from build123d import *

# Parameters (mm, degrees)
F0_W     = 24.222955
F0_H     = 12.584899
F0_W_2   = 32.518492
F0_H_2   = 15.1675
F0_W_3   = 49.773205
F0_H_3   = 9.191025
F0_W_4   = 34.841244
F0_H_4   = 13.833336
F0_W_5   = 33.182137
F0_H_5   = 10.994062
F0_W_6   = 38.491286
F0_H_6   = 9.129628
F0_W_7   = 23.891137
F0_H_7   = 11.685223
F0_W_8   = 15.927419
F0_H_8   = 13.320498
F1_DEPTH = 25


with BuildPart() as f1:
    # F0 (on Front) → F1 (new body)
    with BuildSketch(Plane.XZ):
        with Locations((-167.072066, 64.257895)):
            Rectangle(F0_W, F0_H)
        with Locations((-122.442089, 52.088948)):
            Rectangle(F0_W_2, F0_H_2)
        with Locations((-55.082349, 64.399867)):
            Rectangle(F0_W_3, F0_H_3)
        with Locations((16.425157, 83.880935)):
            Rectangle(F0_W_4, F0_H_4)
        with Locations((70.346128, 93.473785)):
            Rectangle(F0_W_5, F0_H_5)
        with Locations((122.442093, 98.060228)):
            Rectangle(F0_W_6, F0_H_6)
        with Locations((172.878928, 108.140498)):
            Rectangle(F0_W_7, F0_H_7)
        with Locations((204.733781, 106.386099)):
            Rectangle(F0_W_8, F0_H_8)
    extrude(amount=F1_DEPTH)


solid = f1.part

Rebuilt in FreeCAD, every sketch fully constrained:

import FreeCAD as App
import Part
import Sketcher
Q = App.Units.Quantity

doc = App.newDocument("Part")
body = doc.addObject("PartDesign::Body", "Body")
body.AllowCompound = True

sketch1 = body.newObject("Sketcher::SketchObject", "Sketch")
sketch1.AttachmentSupport = (doc.getObject("XZ_Plane"), [""])
sketch1.MapMode = "FlatFace"
sketch1.addGeometry([
    Part.LineSegment(App.Vector(-179.183544, 70.550344, 0), App.Vector(-179.183544, 57.965446, 0)),
    Part.LineSegment(App.Vector(-179.183544, 57.965446, 0), App.Vector(-154.960589, 57.965446, 0)),
    Part.LineSegment(App.Vector(-154.960589, 57.965446, 0), App.Vector(-154.960589, 70.550344, 0)),
    Part.LineSegment(App.Vector(-154.960589, 70.550344, 0), App.Vector(-179.183544, 70.550344, 0)),
    Part.LineSegment(App.Vector(-138.701335, 59.672698, 0), App.Vector(-138.701335, 44.505198, 0)),
    Part.LineSegment(App.Vector(-138.701335, 44.505198, 0), App.Vector(-106.182843, 44.505198, 0)),
    Part.LineSegment(App.Vector(-106.182843, 44.505198, 0), App.Vector(-106.182843, 59.672698, 0)),
    Part.LineSegment(App.Vector(-106.182843, 59.672698, 0), App.Vector(-138.701335, 59.672698, 0)),
    Part.LineSegment(App.Vector(-79.968952, 68.995379, 0), App.Vector(-79.968952, 59.804355, 0)),
    Part.LineSegment(App.Vector(-79.968952, 59.804355, 0), App.Vector(-30.195746, 59.804355, 0)),
    Part.LineSegment(App.Vector(-30.195746, 59.804355, 0), App.Vector(-30.195746, 68.995379, 0)),
    Part.LineSegment(App.Vector(-30.195746, 68.995379, 0), App.Vector(-79.968952, 68.995379, 0)),
    Part.LineSegment(App.Vector(-0.995465, 90.797603, 0), App.Vector(-0.995465, 76.964267, 0)),
    Part.LineSegment(App.Vector(-0.995465, 76.964267, 0), App.Vector(33.845779, 76.964267, 0)),
    Part.LineSegment(App.Vector(33.845779, 76.964267, 0), App.Vector(33.845779, 90.797603, 0)),
    Part.LineSegment(App.Vector(33.845779, 90.797603, 0), App.Vector(-0.995465, 90.797603, 0)),
    Part.LineSegment(App.Vector(53.75506, 98.970816, 0), App.Vector(53.75506, 87.976754, 0)),
    Part.LineSegment(App.Vector(53.75506, 87.976754, 0), App.Vector(86.937196, 87.976754, 0)),
    Part.LineSegment(App.Vector(86.937196, 87.976754, 0), App.Vector(86.937196, 98.970816, 0)),
    Part.LineSegment(App.Vector(86.937196, 98.970816, 0), App.Vector(53.75506, 98.970816, 0)),
    Part.LineSegment(App.Vector(103.19645, 102.625042, 0), App.Vector(103.19645, 93.495414, 0)),
    Part.LineSegment(App.Vector(103.19645, 93.495414, 0), App.Vector(141.687736, 93.495414, 0)),
    Part.LineSegment(App.Vector(141.687736, 93.495414, 0), App.Vector(141.687736, 102.625042, 0)),
    Part.LineSegment(App.Vector(141.687736, 102.625042, 0), App.Vector(103.19645, 102.625042, 0)),
    Part.LineSegment(App.Vector(160.933359, 113.983109, 0), App.Vector(160.933359, 102.297887, 0)),
    Part.LineSegment(App.Vector(160.933359, 102.297887, 0), App.Vector(184.824497, 102.297887, 0)),
    Part.LineSegment(App.Vector(184.824497, 102.297887, 0), App.Vector(184.824497, 113.983109, 0)),
    Part.LineSegment(App.Vector(184.824497, 113.983109, 0), App.Vector(160.933359, 113.983109, 0)),
    Part.LineSegment(App.Vector(196.770072, 113.046348, 0), App.Vector(196.770072, 99.72585, 0)),
    Part.LineSegment(App.Vector(196.770072, 99.72585, 0), App.Vector(212.69749, 99.72585, 0)),
    Part.LineSegment(App.Vector(212.69749, 99.72585, 0), App.Vector(212.69749, 113.046348, 0)),
    Part.LineSegment(App.Vector(212.69749, 113.046348, 0), App.Vector(196.770072, 113.046348, 0)),
], False)
sketch1.addConstraint([
    Sketcher.Constraint("Coincident", 0, 2, 1, 1),
    Sketcher.Constraint("Coincident", 1, 2, 2, 1),
    Sketcher.Constraint("Coincident", 2, 2, 3, 1),
    Sketcher.Constraint("Coincident", 3, 2, 0, 1),
    Sketcher.Constraint("Coincident", 4, 2, 5, 1),
    Sketcher.Constraint("Coincident", 5, 2, 6, 1),
    Sketcher.Constraint("Coincident", 6, 2, 7, 1),
    Sketcher.Constraint("Coincident", 7, 2, 4, 1),
    Sketcher.Constraint("Coincident", 8, 2, 9, 1),
    Sketcher.Constraint("Coincident", 9, 2, 10, 1),
    Sketcher.Constraint("Coincident", 10, 2, 11, 1),
    Sketcher.Constraint("Coincident", 11, 2, 8, 1),
    Sketcher.Constraint("Coincident", 12, 2, 13, 1),
    Sketcher.Constraint("Coincident", 13, 2, 14, 1),
    Sketcher.Constraint("Coincident", 14, 2, 15, 1),
    Sketcher.Constraint("Coincident", 15, 2, 12, 1),
    Sketcher.Constraint("Coincident", 16, 2, 17, 1),
    Sketcher.Constraint("Coincident", 17, 2, 18, 1),
    Sketcher.Constraint("Coincident", 18, 2, 19, 1),
    Sketcher.Constraint("Coincident", 19, 2, 16, 1),
    Sketcher.Constraint("Coincident", 20, 2, 21, 1),
    Sketcher.Constraint("Coincident", 21, 2, 22, 1),
    Sketcher.Constraint("Coincident", 22, 2, 23, 1),
    Sketcher.Constraint("Coincident", 23, 2, 20, 1),
    Sketcher.Constraint("Coincident", 24, 2, 25, 1),
    Sketcher.Constraint("Coincident", 25, 2, 26, 1),
    Sketcher.Constraint("Coincident", 26, 2, 27, 1),
    Sketcher.Constraint("Coincident", 27, 2, 24, 1),
    Sketcher.Constraint("Coincident", 28, 2, 29, 1),
    Sketcher.Constraint("Coincident", 29, 2, 30, 1),
    Sketcher.Constraint("Coincident", 30, 2, 31, 1),
    Sketcher.Constraint("Coincident", 31, 2, 28, 1),
    Sketcher.Constraint("Vertical", 0),
    Sketcher.Constraint("Horizontal", 1),
    Sketcher.Constraint("Vertical", 2),
    Sketcher.Constraint("Horizontal", 3),
    Sketcher.Constraint("Vertical", 4),
    Sketcher.Constraint("Horizontal", 5),
    Sketcher.Constraint("Vertical", 6),
    Sketcher.Constraint("Horizontal", 7),
    Sketcher.Constraint("Vertical", 8),
    Sketcher.Constraint("Horizontal", 9),
    Sketcher.Constraint("Vertical", 10),
    Sketcher.Constraint("Horizontal", 11),
    Sketcher.Constraint("Vertical", 12),
    Sketcher.Constraint("Horizontal", 13),
    Sketcher.Constraint("Vertical", 14),
    Sketcher.Constraint("Horizontal", 15),
    Sketcher.Constraint("Vertical", 16),
    Sketcher.Constraint("Horizontal", 17),
    Sketcher.Constraint("Vertical", 18),
    Sketcher.Constraint("Horizontal", 19),
    Sketcher.Constraint("Vertical", 20),
    Sketcher.Constraint("Horizontal", 21),
    Sketcher.Constraint("Vertical", 22),
    Sketcher.Constraint("Horizontal", 23),
    Sketcher.Constraint("Vertical", 24),
    Sketcher.Constraint("Horizontal", 25),
    Sketcher.Constraint("Vertical", 26),
    Sketcher.Constraint("Horizontal", 27),
    Sketcher.Constraint("Vertical", 28),
    Sketcher.Constraint("Horizontal", 29),
    Sketcher.Constraint("Vertical", 30),
    Sketcher.Constraint("Horizontal", 31),
    Sketcher.Constraint("DistanceY", 0, 2, 0, 1, Q("12.584899 mm")),
    Sketcher.Constraint("DistanceY", 4, 2, 4, 1, Q("15.1675 mm")),
    Sketcher.Constraint("DistanceY", 28, 2, 28, 1, Q("13.320498 mm")),
    Sketcher.Constraint("DistanceX", 5, 1, 5, 2, Q("32.518492 mm")),
    Sketcher.Constraint("DistanceX", 29, 1, 29, 2, Q("15.927419 mm")),
    Sketcher.Constraint("DistanceX", 0, 2, 5, 2, Q("73.000701 mm")),
    Sketcher.Constraint("DistanceX", 1, 1, 1, 2, Q("24.222955 mm")),
    Sketcher.Constraint("DistanceX", 9, 1, 9, 2, Q("49.773205 mm")),
    Sketcher.Constraint("DistanceX", 13, 1, 13, 2, Q("34.841244 mm")),
    Sketcher.Constraint("DistanceX", 17, 1, 17, 2, Q("33.182137 mm")),
    Sketcher.Constraint("DistanceX", 21, 1, 21, 2, Q("38.491286 mm")),
    Sketcher.Constraint("DistanceX", 25, 1, 25, 2, Q("23.891137 mm")),
    Sketcher.Constraint("DistanceY", 8, 2, 8, 1, Q("9.191025 mm")),
    Sketcher.Constraint("DistanceY", 12, 2, 12, 1, Q("13.833336 mm")),
    Sketcher.Constraint("DistanceY", 16, 2, 16, 1, Q("10.994062 mm")),
    Sketcher.Constraint("DistanceY", 20, 2, 20, 1, Q("9.129628 mm")),
    Sketcher.Constraint("DistanceY", 24, 2, 24, 1, Q("11.685223 mm")),
    Sketcher.Constraint("DistanceX", 1, 2, -1, 1, Q("154.960589 mm")),
    Sketcher.Constraint("DistanceX", 8, 2, -1, 1, Q("79.968952 mm")),
    Sketcher.Constraint("DistanceY", -1, 1, 10, 2, Q("68.995379 mm")),
    Sketcher.Constraint("DistanceX", -1, 1, 13, 2, Q("33.845779 mm")),
    Sketcher.Constraint("DistanceX", -1, 1, 16, 2, Q("53.75506 mm")),
    Sketcher.Constraint("DistanceX", -1, 1, 20, 2, Q("103.19645 mm")),
    Sketcher.Constraint("DistanceY", -1, 1, 22, 2, Q("102.625042 mm")),
    Sketcher.Constraint("DistanceX", -1, 1, 24, 2, Q("160.933359 mm")),
    Sketcher.Constraint("DistanceY", -1, 1, 26, 2, Q("113.983109 mm")),
    Sketcher.Constraint("DistanceX", -1, 1, 28, 2, Q("196.770072 mm")),
    Sketcher.Constraint("DistanceY", -1, 1, 28, 2, Q("99.72585 mm")),
    Sketcher.Constraint("DistanceY", 1, 2, 8, 2, Q("1.838909 mm")),
    Sketcher.Constraint("DistanceY", 6, 2, 10, 2, Q("9.322682 mm")),
    Sketcher.Constraint("DistanceY", 6, 2, 12, 2, Q("17.291569 mm")),
    Sketcher.Constraint("DistanceY", 16, 2, 14, 2, Q("2.820849 mm")),
])
pad1 = body.newObject("PartDesign::Pad", "Pad")
pad1.Profile = sketch1
pad1.Length = 25

doc.recompute()
